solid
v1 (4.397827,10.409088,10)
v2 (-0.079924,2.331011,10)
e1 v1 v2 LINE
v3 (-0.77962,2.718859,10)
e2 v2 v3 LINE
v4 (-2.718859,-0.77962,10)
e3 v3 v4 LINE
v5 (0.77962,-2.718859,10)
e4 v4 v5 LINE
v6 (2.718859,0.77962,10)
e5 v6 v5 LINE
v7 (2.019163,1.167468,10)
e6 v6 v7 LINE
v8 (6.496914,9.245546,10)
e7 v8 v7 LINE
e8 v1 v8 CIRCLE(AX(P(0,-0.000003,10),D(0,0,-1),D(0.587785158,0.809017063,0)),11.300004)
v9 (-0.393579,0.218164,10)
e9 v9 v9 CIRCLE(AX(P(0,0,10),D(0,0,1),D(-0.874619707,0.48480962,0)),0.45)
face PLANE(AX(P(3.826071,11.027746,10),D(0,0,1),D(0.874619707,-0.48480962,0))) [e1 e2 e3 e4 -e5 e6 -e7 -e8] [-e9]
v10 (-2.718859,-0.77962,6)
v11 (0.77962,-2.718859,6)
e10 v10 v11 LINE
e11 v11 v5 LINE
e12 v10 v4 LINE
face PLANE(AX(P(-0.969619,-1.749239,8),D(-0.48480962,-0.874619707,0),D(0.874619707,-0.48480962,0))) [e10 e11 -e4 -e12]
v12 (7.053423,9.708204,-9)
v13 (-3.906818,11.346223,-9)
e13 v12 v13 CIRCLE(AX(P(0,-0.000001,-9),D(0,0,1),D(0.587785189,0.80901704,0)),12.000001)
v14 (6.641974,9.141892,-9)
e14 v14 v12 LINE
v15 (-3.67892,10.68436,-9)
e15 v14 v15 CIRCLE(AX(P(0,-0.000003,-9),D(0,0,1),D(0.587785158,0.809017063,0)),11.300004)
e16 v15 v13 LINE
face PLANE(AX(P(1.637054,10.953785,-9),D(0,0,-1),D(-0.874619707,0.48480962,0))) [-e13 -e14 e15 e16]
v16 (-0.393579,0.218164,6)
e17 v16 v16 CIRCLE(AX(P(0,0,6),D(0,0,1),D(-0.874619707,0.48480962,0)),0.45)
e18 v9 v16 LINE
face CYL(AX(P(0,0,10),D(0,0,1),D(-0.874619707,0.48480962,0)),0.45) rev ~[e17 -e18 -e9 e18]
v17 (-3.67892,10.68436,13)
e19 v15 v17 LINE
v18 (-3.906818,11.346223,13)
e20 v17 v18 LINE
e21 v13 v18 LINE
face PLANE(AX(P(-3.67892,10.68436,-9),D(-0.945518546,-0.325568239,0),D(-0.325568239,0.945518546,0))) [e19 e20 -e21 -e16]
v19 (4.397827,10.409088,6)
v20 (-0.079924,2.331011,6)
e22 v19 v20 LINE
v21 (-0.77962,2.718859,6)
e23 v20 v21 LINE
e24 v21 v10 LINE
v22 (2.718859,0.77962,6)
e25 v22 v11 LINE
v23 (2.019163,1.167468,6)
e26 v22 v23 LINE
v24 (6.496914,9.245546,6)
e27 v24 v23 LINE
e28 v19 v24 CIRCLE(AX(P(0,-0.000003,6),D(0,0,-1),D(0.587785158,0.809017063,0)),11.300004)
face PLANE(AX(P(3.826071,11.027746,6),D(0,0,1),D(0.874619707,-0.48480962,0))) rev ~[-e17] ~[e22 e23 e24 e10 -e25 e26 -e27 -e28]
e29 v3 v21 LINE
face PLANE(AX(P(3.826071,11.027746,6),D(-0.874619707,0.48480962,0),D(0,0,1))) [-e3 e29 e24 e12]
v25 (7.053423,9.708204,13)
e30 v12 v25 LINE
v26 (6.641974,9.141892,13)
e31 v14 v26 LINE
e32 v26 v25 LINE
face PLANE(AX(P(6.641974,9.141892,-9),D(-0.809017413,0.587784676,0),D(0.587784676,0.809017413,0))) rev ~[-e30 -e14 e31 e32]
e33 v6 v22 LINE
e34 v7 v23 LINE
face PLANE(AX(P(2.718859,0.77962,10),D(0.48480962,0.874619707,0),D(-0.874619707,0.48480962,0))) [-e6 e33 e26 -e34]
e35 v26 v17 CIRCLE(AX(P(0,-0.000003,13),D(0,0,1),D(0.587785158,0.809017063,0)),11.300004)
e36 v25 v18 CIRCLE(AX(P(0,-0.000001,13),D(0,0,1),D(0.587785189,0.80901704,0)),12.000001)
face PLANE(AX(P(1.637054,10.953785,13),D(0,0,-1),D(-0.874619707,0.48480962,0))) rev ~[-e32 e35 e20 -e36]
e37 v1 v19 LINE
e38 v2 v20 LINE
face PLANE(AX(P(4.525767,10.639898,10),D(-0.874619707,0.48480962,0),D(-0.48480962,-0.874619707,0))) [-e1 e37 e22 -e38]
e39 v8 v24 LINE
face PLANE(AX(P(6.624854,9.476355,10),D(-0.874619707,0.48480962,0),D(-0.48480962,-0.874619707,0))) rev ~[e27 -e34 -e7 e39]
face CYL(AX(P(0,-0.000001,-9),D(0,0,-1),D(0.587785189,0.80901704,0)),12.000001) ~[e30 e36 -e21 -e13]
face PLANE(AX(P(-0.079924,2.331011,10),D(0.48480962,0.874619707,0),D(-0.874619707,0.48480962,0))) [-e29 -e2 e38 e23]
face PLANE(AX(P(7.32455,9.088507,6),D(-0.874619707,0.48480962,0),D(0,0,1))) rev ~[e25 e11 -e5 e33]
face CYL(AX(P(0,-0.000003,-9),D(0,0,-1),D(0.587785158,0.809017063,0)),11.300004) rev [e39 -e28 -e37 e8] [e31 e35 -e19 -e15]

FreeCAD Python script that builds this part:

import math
import FreeCAD as App
import Part
import Sketcher

V = App.Vector
Q = App.Units.Quantity


def add_polygon(sketch, points):
    """Adds a closed chain of lines whose ends are joined by coincident constraints."""
    first, n = sketch.GeometryCount, len(points)
    for a, b in zip(points, points[1:] + points[:1]):
        sketch.addGeometry(Part.LineSegment(App.Vector(*a, 0), App.Vector(*b, 0)), False)
    for i in range(n):
        sketch.addConstraint(Sketcher.Constraint("Coincident", first + i, 2, first + (i + 1) % n, 1))

doc = App.newDocument("Part")
params = doc.addObject("Spreadsheet::Sheet", "Params")
for row, (alias, value) in enumerate([
    ("sketch1_radius", "12.000001 mm"),
    ("sketch1_length", "0.7 mm"),
    ("pad1_length", "22 mm"),
    ("sketch2_width", "4 mm"),
    ("pad2_length", "13.5 mm"),
    ("sketch3_diameter", "0.9 mm"),
    ("sketch3_width", "0.8 mm"),
    ("sketch3_height", "9.5 mm"),
    ("pocket1_length", "5 mm"),
], start=1):
    params.set(f"A{row}", alias)
    params.set(f"B{row}", "=" + value)
    params.setAlias(f"B{row}", alias)

body = doc.addObject("PartDesign::Body", "Body")

# Sketch on XY plane
sketch1 = doc.addObject("Sketcher::SketchObject", "Sketch")
body.addObject(sketch1)
sketch1.AttachmentSupport = (doc.XY_Plane, [""])
sketch1.MapMode = "FlatFace"
sketch1.addGeometry([
    Part.ArcOfCircle(Part.Circle(V(0.000001, -0.000003, 0), V(0, 0, 1), 11.300004), math.radians(83.000007), math.radians(137.999993)),
    Part.LineSegment(V(1.377124, 11.215772, 0), V(1.462432, 11.910554, 0)),
    Part.ArcOfCircle(Part.Circle(V(0.000001, -0.000001, 0), V(0, 0, 1), 12.000001), math.radians(83.000004), math.radians(138)),
    Part.LineSegment(V(-8.917738, 8.029567, 0), V(-8.397537, 7.561176, 0)),
], False)
sketch1.addConstraint([
    Sketcher.Constraint("Coincident", 0, 1, 1, 1),
    Sketcher.Constraint("Coincident", 1, 2, 2, 1),
    Sketcher.Constraint("Coincident", 2, 2, 3, 1),
    Sketcher.Constraint("Coincident", 3, 2, 0, 2),
    Sketcher.Constraint("Coincident", 0, 3, -1, 1),
    Sketcher.Constraint("Coincident", 2, 3, -1, 1),
    Sketcher.Constraint("Radius", 2, Q("12.000001 mm")),
    Sketcher.Constraint("Angle", 3, Q("-41.999995 deg")),
    Sketcher.Constraint("Distance", 1, Q("0.7 mm")),
    Sketcher.Constraint("DistanceY", 0, 1, 1, 2, Q("0.694782 mm")),
    Sketcher.Constraint("DistanceX", 2, 3, 1, 2, Q("1.462431 mm")),
    Sketcher.Constraint("DistanceX", 2, 2, 0, 1, Q("10.294862 mm")),
])
sketch1.setExpression("Constraints[6]", "Params.sketch1_radius")
sketch1.setExpression("Constraints[8]", "Params.sketch1_length")
pad1 = doc.addObject("PartDesign::Pad", "Pad")
body.addObject(pad1)
pad1.Profile = sketch1
pad1.setExpression("Length", "Params.pad1_length")
body2 = doc.addObject("PartDesign::Body", "Body001")
doc.recompute()

body.Placement = App.Placement(V(0, 0, -9), App.Rotation(V(0, 0, 1), 0))
boolean = doc.addObject("PartDesign::Boolean", "Boolean")
body2.addObject(boolean)
boolean.Type = "Fuse"
boolean.addObjects([body])
body3 = doc.addObject("PartDesign::Body", "Body002")

# Sketch on XY plane
sketch2 = doc.addObject("Sketcher::SketchObject", "Sketch001")
body3.addObject(sketch2)
sketch2.AttachmentSupport = (doc.getObject("XY_Plane002"), [""])
sketch2.MapMode = "FlatFace"
add_polygon(sketch2, [(-2, 8), (-2, 4), (2, 4), (2, 8)])  # lines 0-3
sketch2.addConstraint([
    Sketcher.Constraint("Vertical", 0),
    Sketcher.Constraint("Horizontal", 1),
    Sketcher.Constraint("Vertical", 2),
    Sketcher.Constraint("Horizontal", 3),
    Sketcher.Constraint("Equal", 3, 0),
    Sketcher.Constraint("DistanceX", 1, 1, 1, 2, Q("4 mm")),
    Sketcher.Constraint("DistanceX", 0, 2, -1, 1, Q("2 mm")),
    Sketcher.Constraint("DistanceY", -1, 1, 0, 2, Q("4 mm")),
])
sketch2.setExpression("Constraints[9]", "Params.sketch2_width")
pad2 = doc.addObject("PartDesign::Pad", "Pad001")
body3.addObject(pad2)
pad2.Profile = sketch2
pad2.setExpression("Length", "Params.pad2_length")

# Sketch on XZ plane
sketch3 = doc.addObject("Sketcher::SketchObject", "Sketch002")
body3.addObject(sketch3)
sketch3.AttachmentSupport = (doc.getObject("XZ_Plane002"), [""])
sketch3.MapMode = "FlatFace"
sketch3.AttachmentOffset = App.Placement(V(0, 0, -8), App.Rotation())
sketch3.addGeometry(Part.Circle(V(0, 11.5, 0), V(0, 0, 1), 0.45), False)  # 0
add_polygon(sketch3, [(2, 9.5), (2, 0), (1.2, 0), (1.2, 9.5)])  # lines 1-4
add_polygon(sketch3, [(-1.2, 9.5), (-1.2, 0), (-2, 0), (-2, 9.5)])  # lines 5-8
sketch3.addConstraint([
    Sketcher.Constraint("Vertical", 1),
    Sketcher.Constraint("Horizontal", 2),
    Sketcher.Constraint("Vertical", 3),
    Sketcher.Constraint("Horizontal", 4),
    Sketcher.Constraint("Vertical", 5),
    Sketcher.Constraint("Horizontal", 6),
    Sketcher.Constraint("Vertical", 7),
    Sketcher.Constraint("Horizontal", 8),
    Sketcher.Constraint("Symmetric", 2, 2, 5, 2, -1, 1),
    Sketcher.Constraint("Symmetric", 1, 2, 6, 2, -2),
    Sketcher.Constraint("PointOnObject", 0, 3, -2),
    Sketcher.Constraint("Horizontal", 4, 2, 7, 2),
    Sketcher.Constraint("Diameter", 0, Q("0.9 mm")),
    Sketcher.Constraint("DistanceX", 2, 2, 2, 1, Q("0.8 mm")),
    Sketcher.Constraint("DistanceY", 1, 2, 1, 1, Q("9.5 mm")),
    Sketcher.Constraint("DistanceX", -1, 1, 1, 2, Q("2 mm")),
    Sketcher.Constraint("DistanceY", 3, 2, 0, 3, Q("2 mm")),
])
sketch3.setExpression("Constraints[20]", "Params.sketch3_diameter")
sketch3.setExpression("Constraints[21]", "Params.sketch3_width")
sketch3.setExpression("Constraints[22]", "Params.sketch3_height")
pocket1 = doc.addObject("PartDesign::Pocket", "Pocket")
body3.addObject(pocket1)
pocket1.Profile = sketch3
pocket1.setExpression("Length", "Params.pocket1_length")
pocket1.Reversed = True
body4 = doc.addObject("PartDesign::Body", "Body003")
doc.recompute()

body3.Placement = App.Placement(V(0, 11.5, 2), App.Rotation(V(1, 0, 0), 90))
boolean2 = doc.addObject("PartDesign::Boolean", "Boolean001")
body4.addObject(boolean2)
boolean2.Type = "Fuse"
boolean2.addObjects([body3])
doc.recompute()

boolean3 = doc.addObject("PartDesign::Boolean", "Boolean002")
body4.addObject(boolean3)
boolean3.Type = "Fuse"
boolean3.addObjects([body2])
body5 = doc.addObject("PartDesign::Body", "Body004")
doc.recompute()

body4.Placement = App.Placement(V(0, 0, 0), App.Rotation(V(0, 0, -1), 29))
boolean4 = doc.addObject("PartDesign::Boolean", "Boolean003")
body5.addObject(boolean4)
boolean4.Type = "Fuse"
boolean4.addObjects([body4])

doc.recompute()
